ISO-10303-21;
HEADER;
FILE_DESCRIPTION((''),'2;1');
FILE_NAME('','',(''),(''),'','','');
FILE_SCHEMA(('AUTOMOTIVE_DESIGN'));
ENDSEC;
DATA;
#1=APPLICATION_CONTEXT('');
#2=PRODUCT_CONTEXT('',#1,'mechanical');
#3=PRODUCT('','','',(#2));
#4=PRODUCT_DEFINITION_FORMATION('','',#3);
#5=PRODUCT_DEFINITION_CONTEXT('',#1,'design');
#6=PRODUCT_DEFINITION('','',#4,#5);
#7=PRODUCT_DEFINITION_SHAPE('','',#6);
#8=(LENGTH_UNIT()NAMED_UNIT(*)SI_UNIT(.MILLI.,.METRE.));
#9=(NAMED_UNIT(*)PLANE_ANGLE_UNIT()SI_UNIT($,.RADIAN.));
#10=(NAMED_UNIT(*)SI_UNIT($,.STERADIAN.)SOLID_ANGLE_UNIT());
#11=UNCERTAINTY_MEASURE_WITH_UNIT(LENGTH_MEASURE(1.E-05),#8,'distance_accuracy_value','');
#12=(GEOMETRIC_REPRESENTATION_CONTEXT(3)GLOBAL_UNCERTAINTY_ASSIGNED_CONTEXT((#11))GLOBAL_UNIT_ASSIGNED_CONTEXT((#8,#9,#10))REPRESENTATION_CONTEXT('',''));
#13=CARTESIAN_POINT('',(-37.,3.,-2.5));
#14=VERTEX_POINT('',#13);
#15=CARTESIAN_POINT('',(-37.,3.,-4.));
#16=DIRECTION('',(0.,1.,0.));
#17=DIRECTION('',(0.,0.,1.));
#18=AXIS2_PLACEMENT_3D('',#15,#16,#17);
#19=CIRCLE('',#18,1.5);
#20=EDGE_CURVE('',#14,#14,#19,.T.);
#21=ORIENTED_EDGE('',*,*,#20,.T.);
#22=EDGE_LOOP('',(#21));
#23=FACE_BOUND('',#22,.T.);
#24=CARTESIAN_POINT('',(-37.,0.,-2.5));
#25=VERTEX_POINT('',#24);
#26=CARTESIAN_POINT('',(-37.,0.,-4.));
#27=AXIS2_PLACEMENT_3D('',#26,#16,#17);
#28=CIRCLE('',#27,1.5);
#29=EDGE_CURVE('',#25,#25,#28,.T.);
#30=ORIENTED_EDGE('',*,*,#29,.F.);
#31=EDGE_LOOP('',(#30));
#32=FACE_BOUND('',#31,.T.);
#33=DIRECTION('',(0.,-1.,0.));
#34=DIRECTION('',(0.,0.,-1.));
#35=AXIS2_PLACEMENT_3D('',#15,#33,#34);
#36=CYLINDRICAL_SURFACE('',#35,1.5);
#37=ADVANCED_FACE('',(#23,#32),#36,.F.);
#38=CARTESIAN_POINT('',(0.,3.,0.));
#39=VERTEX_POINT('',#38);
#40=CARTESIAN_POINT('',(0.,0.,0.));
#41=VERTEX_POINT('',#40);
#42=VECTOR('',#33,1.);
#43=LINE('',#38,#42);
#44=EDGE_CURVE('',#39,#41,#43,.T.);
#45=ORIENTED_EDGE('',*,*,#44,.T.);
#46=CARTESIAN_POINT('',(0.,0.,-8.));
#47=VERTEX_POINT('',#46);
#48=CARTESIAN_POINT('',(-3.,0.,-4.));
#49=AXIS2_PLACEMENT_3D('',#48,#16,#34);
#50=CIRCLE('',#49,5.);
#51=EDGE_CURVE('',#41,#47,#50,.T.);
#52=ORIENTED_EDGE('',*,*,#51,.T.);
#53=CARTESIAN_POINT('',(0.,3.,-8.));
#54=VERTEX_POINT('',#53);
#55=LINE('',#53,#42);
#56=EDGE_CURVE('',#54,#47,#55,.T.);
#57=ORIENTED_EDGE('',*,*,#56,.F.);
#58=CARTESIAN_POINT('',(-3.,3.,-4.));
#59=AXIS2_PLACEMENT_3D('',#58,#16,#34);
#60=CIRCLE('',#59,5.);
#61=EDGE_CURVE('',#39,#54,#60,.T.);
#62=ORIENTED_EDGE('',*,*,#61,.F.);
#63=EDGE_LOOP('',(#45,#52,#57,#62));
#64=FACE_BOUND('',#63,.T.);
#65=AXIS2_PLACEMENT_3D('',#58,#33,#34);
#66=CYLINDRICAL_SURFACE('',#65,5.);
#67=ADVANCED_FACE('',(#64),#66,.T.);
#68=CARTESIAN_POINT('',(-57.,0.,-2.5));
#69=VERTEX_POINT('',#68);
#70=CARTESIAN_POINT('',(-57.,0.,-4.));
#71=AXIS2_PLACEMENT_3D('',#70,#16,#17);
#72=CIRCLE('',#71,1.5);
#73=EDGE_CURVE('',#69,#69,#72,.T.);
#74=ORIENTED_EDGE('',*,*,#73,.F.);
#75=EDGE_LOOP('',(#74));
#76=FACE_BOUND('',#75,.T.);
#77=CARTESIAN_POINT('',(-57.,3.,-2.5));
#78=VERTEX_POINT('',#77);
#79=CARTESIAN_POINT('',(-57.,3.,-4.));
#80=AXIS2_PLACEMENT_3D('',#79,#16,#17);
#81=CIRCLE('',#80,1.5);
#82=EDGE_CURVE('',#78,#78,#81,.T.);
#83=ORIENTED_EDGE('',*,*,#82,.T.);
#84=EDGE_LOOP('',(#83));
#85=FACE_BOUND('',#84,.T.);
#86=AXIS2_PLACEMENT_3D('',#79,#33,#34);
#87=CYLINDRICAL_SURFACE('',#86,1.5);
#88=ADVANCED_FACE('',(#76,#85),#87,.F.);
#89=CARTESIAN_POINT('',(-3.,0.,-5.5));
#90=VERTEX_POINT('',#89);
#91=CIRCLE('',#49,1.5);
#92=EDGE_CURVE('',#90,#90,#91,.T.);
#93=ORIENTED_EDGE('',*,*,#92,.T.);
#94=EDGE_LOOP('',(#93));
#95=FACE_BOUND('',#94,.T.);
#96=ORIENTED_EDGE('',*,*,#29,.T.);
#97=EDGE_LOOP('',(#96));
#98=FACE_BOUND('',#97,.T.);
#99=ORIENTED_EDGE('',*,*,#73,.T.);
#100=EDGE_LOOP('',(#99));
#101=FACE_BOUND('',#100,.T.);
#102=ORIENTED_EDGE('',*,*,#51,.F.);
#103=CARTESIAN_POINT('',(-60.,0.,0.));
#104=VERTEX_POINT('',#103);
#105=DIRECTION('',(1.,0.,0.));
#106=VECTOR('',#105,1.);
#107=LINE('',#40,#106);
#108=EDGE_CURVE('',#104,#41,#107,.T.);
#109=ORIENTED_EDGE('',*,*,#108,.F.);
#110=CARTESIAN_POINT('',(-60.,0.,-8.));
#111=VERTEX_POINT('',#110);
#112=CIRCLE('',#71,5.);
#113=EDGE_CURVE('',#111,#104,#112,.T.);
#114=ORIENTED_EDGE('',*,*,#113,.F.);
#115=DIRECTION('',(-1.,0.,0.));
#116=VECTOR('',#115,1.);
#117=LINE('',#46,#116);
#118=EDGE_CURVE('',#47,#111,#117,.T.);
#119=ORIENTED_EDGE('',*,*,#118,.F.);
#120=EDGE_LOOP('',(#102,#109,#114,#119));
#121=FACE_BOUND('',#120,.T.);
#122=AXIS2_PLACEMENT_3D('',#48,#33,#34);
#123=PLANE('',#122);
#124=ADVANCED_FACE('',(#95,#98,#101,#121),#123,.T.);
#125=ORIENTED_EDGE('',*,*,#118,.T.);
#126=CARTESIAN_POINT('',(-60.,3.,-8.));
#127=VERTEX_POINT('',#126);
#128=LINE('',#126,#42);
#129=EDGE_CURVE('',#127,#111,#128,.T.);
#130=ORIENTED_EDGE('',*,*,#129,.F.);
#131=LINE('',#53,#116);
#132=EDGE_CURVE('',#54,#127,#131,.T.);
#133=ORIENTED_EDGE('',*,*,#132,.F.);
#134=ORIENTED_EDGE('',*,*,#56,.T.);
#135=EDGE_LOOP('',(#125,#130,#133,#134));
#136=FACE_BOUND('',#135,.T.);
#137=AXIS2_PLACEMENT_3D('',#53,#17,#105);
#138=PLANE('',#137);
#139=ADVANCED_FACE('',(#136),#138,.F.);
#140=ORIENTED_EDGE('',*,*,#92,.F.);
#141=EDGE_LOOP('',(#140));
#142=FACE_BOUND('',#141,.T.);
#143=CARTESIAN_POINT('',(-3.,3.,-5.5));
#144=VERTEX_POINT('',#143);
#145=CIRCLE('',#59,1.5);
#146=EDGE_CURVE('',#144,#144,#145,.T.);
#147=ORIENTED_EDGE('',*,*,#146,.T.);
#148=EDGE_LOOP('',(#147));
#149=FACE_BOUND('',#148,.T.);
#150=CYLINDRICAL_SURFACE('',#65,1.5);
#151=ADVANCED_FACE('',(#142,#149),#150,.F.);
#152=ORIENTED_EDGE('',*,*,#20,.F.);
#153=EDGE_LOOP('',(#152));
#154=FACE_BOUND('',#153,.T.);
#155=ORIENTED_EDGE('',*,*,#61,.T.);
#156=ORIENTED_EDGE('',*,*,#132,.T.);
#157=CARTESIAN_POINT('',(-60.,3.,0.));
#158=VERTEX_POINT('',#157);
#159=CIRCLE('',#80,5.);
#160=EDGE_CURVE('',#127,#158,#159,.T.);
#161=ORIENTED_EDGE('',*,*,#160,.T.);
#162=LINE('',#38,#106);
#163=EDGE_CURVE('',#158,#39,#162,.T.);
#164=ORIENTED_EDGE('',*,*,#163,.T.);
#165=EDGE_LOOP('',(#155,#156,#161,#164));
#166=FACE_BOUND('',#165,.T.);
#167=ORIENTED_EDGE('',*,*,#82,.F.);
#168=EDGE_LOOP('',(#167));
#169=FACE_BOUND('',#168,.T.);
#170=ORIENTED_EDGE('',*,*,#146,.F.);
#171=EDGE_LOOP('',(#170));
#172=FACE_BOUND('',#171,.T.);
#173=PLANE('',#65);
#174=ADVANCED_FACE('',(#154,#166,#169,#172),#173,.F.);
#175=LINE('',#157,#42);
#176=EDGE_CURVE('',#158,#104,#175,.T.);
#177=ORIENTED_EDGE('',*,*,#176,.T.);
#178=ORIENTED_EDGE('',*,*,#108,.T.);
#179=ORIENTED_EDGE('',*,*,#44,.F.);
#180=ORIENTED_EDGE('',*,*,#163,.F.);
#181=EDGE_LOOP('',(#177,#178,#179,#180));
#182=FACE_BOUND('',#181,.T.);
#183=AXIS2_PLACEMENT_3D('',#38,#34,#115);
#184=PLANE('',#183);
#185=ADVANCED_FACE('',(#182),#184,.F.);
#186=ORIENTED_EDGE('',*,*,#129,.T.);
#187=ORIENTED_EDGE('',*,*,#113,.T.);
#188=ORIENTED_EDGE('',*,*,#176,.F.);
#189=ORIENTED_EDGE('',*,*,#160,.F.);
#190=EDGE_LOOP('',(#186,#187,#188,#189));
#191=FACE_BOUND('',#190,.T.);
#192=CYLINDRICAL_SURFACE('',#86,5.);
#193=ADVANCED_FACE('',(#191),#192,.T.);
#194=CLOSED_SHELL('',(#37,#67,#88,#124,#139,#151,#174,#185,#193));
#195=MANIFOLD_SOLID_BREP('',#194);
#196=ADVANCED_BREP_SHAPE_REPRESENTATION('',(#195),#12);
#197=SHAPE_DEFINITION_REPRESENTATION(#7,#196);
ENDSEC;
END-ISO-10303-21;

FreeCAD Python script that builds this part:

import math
import FreeCAD as App
import Part
import Sketcher

V = App.Vector
Q = App.Units.Quantity

doc = App.newDocument("Part")
body = doc.addObject("PartDesign::Body", "Body")

# Sketch on XZ plane
sketch1 = body.newObject("Sketcher::SketchObject", "Sketch")
sketch1.AttachmentSupport = (doc.getObject("XZ_Plane"), [""])
sketch1.MapMode = "FlatFace"
sketch1.addGeometry([
    Part.LineSegment(V(-60, 0, 0), V(0, 0, 0)),  # 0
    Part.ArcOfCircle(Part.Circle(V(-3, -4, 0), V(0, 0, 1), 5), math.radians(-53), math.radians(53)),  # 1
    Part.LineSegment(V(0, -8, 0), V(-60, -8, 0)),  # 2
    Part.ArcOfCircle(Part.Circle(V(-57, -4, 0), V(0, 0, 1), 5), math.radians(127), math.radians(233)),  # 3
    Part.Circle(V(-3, -4, 0), V(0, 0, 1), 1.5),  # 4
    Part.Circle(V(-37, -4, 0), V(0, 0, 1), 1.5),  # 5
    Part.Circle(V(-57, -4, 0), V(0, 0, 1), 1.5),  # 6
], False)
sketch1.addConstraint([
    Sketcher.Constraint("Coincident", 0, 2, 1, 2),
    Sketcher.Constraint("Coincident", 1, 1, 2, 1),
    Sketcher.Constraint("Coincident", 2, 2, 3, 2),
    Sketcher.Constraint("Coincident", 3, 1, 0, 1),
    Sketcher.Constraint("Horizontal", 0),
    Sketcher.Constraint("Horizontal", 2),
    Sketcher.Constraint("Coincident", 0, 2, -1, 1),
    Sketcher.Constraint("Coincident", 4, 3, 1, 3),
    Sketcher.Constraint("Coincident", 6, 3, 3, 3),
    Sketcher.Constraint("Equal", 1, 3),
    Sketcher.Constraint("Equal", 4, 5),
    Sketcher.Constraint("Equal", 5, 6),
    Sketcher.Constraint("PointOnObject", 1, 1, -2),
    Sketcher.Constraint("Horizontal", 1, 3, 3, 3),
    Sketcher.Constraint("Horizontal", 4, 3, 5, 3),
    Sketcher.Constraint("Diameter", 4, Q("3 mm")),
    Sketcher.Constraint("Radius", 1, Q("5 mm")),
    Sketcher.Constraint("DistanceX", 0, 1, 0, 2, Q("60 mm")),
    Sketcher.Constraint("DistanceX", 1, 3, -1, 1, Q("3 mm")),
    Sketcher.Constraint("DistanceX", 5, 3, -1, 1, Q("37 mm")),
])
pad1 = body.newObject("PartDesign::Pad", "Pad")
pad1.Profile = sketch1
pad1.Length = 3
pad1.Reversed = True

doc.recompute()
